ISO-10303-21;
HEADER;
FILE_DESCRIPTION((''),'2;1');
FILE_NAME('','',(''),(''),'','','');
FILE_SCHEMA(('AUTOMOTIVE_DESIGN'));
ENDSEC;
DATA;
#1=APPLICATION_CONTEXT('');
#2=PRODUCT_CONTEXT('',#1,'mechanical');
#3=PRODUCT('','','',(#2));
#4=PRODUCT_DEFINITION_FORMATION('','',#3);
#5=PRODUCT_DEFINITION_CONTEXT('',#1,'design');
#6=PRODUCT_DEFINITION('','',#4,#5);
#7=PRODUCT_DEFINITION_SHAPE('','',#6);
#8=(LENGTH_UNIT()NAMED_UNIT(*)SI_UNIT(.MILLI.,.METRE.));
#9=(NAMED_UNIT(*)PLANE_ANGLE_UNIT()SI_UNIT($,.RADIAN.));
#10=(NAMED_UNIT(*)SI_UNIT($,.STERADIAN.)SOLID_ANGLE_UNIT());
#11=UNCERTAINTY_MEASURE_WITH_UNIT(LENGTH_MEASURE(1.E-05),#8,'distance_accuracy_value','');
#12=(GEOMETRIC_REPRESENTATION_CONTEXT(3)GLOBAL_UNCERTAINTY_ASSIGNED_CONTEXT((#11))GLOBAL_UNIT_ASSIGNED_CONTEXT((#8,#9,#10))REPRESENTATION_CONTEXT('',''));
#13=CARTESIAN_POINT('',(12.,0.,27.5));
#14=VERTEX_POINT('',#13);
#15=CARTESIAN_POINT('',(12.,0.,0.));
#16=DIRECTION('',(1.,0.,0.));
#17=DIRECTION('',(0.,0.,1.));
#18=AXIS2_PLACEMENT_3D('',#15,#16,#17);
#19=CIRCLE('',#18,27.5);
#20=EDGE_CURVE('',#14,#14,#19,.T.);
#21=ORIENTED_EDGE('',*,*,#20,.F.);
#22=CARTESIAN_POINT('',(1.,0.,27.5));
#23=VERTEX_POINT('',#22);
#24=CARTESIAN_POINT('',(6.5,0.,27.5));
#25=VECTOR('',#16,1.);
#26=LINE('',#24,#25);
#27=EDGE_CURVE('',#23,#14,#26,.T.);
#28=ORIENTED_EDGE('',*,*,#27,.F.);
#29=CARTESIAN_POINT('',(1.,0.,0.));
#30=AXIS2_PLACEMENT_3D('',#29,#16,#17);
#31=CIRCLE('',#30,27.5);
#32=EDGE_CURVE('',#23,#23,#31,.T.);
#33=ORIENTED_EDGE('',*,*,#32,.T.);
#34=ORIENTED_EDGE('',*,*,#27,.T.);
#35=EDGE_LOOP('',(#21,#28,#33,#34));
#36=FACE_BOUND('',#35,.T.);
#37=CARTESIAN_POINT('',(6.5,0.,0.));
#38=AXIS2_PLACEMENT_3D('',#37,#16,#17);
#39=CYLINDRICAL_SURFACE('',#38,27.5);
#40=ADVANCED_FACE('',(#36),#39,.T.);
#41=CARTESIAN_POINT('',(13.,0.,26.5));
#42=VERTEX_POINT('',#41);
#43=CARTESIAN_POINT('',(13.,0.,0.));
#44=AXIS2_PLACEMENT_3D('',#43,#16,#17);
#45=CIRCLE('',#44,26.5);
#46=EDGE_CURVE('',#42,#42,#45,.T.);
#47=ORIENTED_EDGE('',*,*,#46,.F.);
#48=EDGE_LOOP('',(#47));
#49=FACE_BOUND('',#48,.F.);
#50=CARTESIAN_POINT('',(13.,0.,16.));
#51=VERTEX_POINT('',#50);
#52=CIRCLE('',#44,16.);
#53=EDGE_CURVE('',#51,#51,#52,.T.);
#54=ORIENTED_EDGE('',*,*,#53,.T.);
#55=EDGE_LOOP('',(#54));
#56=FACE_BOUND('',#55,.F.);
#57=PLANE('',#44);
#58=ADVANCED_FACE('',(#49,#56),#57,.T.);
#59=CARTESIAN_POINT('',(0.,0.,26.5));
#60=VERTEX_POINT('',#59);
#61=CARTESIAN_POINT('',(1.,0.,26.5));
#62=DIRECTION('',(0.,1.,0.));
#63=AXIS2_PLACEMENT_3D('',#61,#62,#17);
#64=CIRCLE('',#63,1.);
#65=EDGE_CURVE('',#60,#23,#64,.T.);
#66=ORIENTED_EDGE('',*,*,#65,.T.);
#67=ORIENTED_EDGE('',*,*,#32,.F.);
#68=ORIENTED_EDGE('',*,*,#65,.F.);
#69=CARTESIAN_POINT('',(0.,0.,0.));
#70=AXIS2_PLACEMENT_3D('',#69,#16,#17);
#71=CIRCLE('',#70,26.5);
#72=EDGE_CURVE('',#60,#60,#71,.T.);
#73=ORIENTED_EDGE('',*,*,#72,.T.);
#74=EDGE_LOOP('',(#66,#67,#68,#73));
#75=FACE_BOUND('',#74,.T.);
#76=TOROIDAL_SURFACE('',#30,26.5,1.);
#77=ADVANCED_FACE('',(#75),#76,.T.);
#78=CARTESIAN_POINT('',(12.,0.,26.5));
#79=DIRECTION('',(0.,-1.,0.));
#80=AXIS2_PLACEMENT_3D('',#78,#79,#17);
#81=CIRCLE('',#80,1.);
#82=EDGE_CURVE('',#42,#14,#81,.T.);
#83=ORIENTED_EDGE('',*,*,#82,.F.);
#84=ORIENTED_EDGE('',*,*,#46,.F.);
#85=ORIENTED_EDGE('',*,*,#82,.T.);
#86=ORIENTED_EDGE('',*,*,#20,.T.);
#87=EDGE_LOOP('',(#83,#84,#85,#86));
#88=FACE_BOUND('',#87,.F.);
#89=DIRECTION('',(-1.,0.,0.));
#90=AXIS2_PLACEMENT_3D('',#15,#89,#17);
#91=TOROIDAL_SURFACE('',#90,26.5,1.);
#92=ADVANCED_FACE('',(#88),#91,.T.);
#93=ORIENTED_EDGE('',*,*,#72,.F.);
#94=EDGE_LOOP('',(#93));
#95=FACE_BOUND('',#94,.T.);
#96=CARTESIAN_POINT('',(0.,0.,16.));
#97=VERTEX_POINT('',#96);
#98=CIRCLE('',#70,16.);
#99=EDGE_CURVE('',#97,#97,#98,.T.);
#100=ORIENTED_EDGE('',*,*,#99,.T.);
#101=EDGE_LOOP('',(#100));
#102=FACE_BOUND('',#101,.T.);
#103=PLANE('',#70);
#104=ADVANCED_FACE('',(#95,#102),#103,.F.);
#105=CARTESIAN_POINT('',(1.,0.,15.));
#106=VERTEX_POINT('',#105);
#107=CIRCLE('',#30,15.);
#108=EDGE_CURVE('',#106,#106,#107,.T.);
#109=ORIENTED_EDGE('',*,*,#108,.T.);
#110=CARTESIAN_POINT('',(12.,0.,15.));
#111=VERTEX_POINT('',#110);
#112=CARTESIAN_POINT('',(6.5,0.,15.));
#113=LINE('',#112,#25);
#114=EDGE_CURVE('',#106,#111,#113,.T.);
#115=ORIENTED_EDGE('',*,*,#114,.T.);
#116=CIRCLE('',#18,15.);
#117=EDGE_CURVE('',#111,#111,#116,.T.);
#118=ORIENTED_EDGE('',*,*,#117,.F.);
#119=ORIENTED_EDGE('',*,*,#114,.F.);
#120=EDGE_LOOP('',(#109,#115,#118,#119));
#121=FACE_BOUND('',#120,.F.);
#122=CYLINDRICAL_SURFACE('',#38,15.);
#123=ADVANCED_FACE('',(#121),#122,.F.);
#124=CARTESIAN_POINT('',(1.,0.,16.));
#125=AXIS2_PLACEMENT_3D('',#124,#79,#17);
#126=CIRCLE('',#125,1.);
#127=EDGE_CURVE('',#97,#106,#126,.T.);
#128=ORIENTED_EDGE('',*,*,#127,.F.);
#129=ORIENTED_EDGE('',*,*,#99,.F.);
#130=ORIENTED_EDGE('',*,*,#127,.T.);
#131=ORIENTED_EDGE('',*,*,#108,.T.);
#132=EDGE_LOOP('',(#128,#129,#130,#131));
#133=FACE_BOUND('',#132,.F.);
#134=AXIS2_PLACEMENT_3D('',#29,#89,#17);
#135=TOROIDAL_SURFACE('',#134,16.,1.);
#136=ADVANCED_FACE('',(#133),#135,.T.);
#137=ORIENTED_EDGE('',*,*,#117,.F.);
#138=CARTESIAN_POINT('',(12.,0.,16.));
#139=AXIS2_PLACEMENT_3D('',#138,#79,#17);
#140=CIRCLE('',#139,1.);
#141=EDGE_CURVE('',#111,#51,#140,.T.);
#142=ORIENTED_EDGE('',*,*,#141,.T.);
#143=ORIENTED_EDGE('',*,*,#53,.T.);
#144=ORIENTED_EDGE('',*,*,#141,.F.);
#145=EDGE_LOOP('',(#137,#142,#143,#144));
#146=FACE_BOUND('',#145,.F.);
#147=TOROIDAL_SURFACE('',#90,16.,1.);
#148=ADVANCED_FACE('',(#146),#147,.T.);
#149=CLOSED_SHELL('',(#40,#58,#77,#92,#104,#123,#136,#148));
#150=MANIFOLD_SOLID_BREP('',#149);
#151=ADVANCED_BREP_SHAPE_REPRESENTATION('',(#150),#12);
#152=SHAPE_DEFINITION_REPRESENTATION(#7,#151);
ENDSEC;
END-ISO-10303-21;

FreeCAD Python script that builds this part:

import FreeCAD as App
import Part
import Sketcher
from FreeCAD import Vector


def add_polygon(sketch, points):
    """Adds a closed chain of lines whose ends are joined by coincident constraints."""
    first, n = sketch.GeometryCount, len(points)
    for a, b in zip(points, points[1:] + points[:1]):
        sketch.addGeometry(Part.LineSegment(App.Vector(*a, 0), App.Vector(*b, 0)), False)
    for i in range(n):
        sketch.addConstraint(Sketcher.Constraint("Coincident", first + i, 2, first + (i + 1) % n, 1))

doc = App.newDocument("Part")
body = doc.addObject("PartDesign::Body", "Body")

# Sketch on XZ plane
sketch1 = body.newObject("Sketcher::SketchObject", "Sketch")
sketch1.AttachmentSupport = (doc.getObject("XZ_Plane"), [""])
sketch1.MapMode = "FlatFace"
add_polygon(sketch1, [(0, 28), (0, 15), (13, 15), (13, 28)])  # lines 0-3
sketch1.addConstraint([
    Sketcher.Constraint("Vertical", 0),
    Sketcher.Constraint("Horizontal", 1),
    Sketcher.Constraint("Vertical", 2),
    Sketcher.Constraint("Horizontal", 3),
    Sketcher.Constraint("PointOnObject", 0, 2, -2),
    Sketcher.Constraint("DistanceX", 1, 1, 1, 2, 13.0),
    Sketcher.Constraint("DistanceY", 0, 2, 0, 1, 12.5),
    Sketcher.Constraint("DistanceY", -1, 1, 0, 2, 15.0),
])
revolution = body.newObject("PartDesign::Revolution", "Revolution")
revolution.Profile = sketch1
revolution.ReferenceAxis = (sketch1, ["H_Axis"])
revolution.Angle = 360
doc.recompute()

fillet = body.newObject("PartDesign::Fillet", "Fillet")
fillet.Base = (revolution, ["Edge1"])
fillet.UseAllEdges = True
fillet.Radius = 1

doc.recompute()
